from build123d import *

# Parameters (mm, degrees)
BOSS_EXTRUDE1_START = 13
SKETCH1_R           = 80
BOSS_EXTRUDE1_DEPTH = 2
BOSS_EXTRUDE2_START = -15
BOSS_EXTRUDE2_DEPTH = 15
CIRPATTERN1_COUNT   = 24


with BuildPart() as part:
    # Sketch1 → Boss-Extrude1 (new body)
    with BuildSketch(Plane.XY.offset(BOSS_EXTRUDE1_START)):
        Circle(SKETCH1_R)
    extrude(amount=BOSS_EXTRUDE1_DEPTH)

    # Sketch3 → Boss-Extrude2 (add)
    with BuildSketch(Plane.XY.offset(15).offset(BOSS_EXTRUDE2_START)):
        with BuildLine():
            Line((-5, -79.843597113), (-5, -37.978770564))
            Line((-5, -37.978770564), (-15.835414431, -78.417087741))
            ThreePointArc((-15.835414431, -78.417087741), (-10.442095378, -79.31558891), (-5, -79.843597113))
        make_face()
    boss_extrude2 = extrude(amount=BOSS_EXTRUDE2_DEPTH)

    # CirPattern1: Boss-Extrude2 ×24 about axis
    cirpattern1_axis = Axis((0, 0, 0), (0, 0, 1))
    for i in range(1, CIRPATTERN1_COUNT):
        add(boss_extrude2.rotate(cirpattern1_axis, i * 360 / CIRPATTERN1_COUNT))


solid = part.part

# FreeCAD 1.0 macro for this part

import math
import FreeCAD as App
import Part
import Sketcher
Q = App.Units.Quantity

doc = App.newDocument("Part")
params = doc.addObject("Spreadsheet::Sheet", "Params")
for row, (alias, value) in enumerate([
    ("sketch1_diameter", "160 mm"),
    ("pad1_length", "2 mm"),
    ("sketch2_radius", "80 mm"),
    ("pad2_length", "15 mm"),
], start=1):
    params.set(f"A{row}", alias)
    params.set(f"B{row}", "=" + value)
    params.setAlias(f"B{row}", alias)

body = doc.addObject("PartDesign::Body", "Body")

# Sketch on XY plane
sketch1 = doc.addObject("Sketcher::SketchObject", "Sketch")
body.addObject(sketch1)
sketch1.AttachmentSupport = (doc.XY_Plane, [""])
sketch1.MapMode = "FlatFace"
sketch1.AttachmentOffset = App.Placement(App.Vector(0, 0, 13), App.Rotation())
sketch1.addGeometry(Part.Circle(App.Vector(0, 0, 0), App.Vector(0, 0, 1), 80), False)
sketch1.addConstraint([
    Sketcher.Constraint("Coincident", 0, 3, -1, 1),
    Sketcher.Constraint("Diameter", 0, 160.0),
])
sketch1.setExpression("Constraints[1]", "Params.sketch1_diameter")
pad1 = doc.addObject("PartDesign::Pad", "Pad")
body.addObject(pad1)
pad1.Profile = sketch1
pad1.setExpression("Length", "Params.pad1_length")

# Sketch on XY plane
sketch2 = doc.addObject("Sketcher::SketchObject", "Sketch001")
body.addObject(sketch2)
sketch2.AttachmentSupport = (doc.XY_Plane, [""])
sketch2.MapMode = "FlatFace"
sketch2.addGeometry([
    Part.LineSegment(App.Vector(-5, -80, 0), App.Vector(-5, -38, 0)),
    Part.LineSegment(App.Vector(-5, -38, 0), App.Vector(-16, -78, 0)),
    Part.ArcOfCircle(Part.Circle(App.Vector(0, 0, 0), App.Vector(0, 0, 1), 80), math.radians(-101.42), math.radians(-93.58)),
], False)
sketch2.addConstraint([
    Sketcher.Constraint("Coincident", 0, 2, 1, 1),
    Sketcher.Constraint("Coincident", 1, 2, 2, 1),
    Sketcher.Constraint("Coincident", 2, 2, 0, 1),
    Sketcher.Constraint("Vertical", 0),
    Sketcher.Constraint("Coincident", 2, 3, -1, 1),
    Sketcher.Constraint("Radius", 2, 80.0),
    Sketcher.Constraint("Angle", 1, Q("-105 deg")),
    Sketcher.Constraint("DistanceX", 0, 2, -1, 1, 5.0),
    Sketcher.Constraint("DistanceY", 0, 1, 0, 2, 41.864827),
])
sketch2.setExpression("Constraints[5]", "Params.sketch2_radius")
pad2 = doc.addObject("PartDesign::Pad", "Pad001")
body.addObject(pad2)
pad2.Profile = sketch2
pad2.setExpression("Length", "Params.pad2_length")
doc.recompute()

polarpattern = doc.addObject("PartDesign::PolarPattern", "PolarPattern")
body.addObject(polarpattern)
polarpattern.Originals = [pad2]
polarpattern.Axis = (doc.Z_Axis, [""])
polarpattern.Angle = 360
polarpattern.Occurrences = 24
body.Tip = polarpattern

doc.recompute()
